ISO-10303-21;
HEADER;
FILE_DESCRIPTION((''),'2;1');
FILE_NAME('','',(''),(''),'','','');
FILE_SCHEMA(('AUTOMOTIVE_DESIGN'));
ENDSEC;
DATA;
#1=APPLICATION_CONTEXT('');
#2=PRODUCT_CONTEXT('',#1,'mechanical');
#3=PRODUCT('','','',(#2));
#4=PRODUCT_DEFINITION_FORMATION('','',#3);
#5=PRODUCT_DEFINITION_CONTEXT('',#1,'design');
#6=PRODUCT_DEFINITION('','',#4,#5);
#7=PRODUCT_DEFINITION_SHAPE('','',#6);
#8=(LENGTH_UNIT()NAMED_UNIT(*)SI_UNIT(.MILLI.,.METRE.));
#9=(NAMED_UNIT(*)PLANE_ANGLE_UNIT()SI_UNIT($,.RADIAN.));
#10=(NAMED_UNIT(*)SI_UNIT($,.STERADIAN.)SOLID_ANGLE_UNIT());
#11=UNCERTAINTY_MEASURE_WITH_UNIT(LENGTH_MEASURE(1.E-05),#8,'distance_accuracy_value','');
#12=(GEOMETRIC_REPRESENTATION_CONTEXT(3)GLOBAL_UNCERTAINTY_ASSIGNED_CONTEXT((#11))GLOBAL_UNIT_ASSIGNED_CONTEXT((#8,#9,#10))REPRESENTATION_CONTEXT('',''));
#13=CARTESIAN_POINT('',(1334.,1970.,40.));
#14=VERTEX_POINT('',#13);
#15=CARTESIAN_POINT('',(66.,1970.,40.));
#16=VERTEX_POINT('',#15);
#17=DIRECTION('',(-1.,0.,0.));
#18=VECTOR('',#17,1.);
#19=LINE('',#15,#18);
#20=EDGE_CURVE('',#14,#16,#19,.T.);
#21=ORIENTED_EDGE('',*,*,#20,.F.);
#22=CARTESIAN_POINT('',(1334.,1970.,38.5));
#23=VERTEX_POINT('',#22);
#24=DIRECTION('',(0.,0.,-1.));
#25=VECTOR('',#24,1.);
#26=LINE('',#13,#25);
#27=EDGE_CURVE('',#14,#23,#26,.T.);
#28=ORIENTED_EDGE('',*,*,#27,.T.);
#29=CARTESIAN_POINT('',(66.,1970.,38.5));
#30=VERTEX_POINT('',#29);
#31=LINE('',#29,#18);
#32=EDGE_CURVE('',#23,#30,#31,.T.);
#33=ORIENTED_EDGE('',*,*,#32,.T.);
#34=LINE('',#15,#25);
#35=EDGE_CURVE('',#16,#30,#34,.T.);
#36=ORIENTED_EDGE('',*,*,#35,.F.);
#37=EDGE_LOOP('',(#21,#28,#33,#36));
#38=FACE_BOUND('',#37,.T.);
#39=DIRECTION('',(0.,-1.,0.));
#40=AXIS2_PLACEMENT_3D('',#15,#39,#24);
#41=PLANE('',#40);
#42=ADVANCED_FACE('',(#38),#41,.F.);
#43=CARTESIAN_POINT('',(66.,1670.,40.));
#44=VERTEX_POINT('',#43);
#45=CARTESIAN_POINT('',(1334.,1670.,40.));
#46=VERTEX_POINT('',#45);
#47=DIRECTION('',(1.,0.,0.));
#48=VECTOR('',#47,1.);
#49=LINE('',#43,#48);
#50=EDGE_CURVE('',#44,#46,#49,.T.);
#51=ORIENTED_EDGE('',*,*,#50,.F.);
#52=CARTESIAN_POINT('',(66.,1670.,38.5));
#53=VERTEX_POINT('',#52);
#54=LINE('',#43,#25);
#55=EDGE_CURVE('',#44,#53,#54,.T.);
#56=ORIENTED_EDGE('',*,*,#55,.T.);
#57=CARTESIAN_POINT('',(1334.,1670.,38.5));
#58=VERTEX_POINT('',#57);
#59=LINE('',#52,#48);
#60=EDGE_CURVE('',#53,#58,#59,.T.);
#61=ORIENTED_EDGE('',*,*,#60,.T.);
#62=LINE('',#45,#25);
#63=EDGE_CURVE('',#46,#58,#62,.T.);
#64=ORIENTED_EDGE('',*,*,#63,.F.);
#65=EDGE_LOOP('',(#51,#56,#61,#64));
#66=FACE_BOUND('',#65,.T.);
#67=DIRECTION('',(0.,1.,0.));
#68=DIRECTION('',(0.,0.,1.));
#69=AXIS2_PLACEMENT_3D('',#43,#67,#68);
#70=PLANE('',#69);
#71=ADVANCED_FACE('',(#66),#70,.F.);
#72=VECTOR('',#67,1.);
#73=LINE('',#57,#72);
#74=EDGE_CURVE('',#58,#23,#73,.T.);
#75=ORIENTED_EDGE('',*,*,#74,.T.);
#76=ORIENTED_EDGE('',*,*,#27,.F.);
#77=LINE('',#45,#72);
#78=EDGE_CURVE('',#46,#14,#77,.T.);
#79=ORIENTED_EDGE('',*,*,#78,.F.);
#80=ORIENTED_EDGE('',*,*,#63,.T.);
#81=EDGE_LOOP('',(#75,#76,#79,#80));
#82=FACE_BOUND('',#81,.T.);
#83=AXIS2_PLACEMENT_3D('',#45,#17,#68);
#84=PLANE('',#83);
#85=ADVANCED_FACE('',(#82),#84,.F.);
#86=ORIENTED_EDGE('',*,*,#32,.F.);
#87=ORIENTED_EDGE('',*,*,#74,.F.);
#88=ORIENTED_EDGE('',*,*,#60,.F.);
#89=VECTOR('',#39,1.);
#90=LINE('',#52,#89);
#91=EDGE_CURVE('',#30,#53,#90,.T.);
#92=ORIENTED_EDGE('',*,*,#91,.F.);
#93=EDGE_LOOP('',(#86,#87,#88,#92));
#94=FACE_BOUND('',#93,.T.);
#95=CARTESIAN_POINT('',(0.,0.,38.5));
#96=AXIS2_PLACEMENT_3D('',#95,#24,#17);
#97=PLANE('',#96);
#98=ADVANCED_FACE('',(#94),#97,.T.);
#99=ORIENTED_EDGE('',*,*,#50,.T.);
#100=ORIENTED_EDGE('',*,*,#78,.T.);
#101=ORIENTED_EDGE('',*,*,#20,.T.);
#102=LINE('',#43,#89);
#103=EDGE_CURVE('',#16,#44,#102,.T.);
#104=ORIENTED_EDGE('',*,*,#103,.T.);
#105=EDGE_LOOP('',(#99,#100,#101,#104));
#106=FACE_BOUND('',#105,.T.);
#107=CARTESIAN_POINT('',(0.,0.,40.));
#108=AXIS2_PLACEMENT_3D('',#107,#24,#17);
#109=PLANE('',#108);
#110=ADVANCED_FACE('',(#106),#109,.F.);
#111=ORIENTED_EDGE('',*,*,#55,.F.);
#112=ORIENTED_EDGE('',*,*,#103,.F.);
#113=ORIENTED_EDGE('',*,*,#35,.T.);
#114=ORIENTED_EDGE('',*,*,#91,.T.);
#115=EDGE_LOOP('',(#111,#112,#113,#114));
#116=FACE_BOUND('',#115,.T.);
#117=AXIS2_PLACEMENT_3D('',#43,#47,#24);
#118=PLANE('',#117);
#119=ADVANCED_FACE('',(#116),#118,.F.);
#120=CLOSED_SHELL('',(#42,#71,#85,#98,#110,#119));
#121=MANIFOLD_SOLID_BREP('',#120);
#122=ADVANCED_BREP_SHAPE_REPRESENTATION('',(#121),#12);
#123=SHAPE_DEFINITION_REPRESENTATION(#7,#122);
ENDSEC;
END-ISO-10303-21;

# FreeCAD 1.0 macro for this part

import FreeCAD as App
import Part
import Sketcher

V = App.Vector

doc = App.newDocument("Part")
body = doc.addObject("PartDesign::Body", "Body")

# Sketch on XY plane
sketch1 = doc.addObject("Sketcher::SketchObject", "Sketch")
body.addObject(sketch1)
sketch1.AttachmentSupport = (doc.XY_Plane, [""])
sketch1.MapMode = "FlatFace"
sketch1.AttachmentOffset = App.Placement(V(0, 0, 38.5), App.Rotation())
sketch1.addGeometry(Part.LineSegment(V(66, 1970, 0), V(66, 1670, 0)), False)
sketch1.addGeometry(Part.LineSegment(V(66, 1670, 0), V(1334, 1670, 0)), False)
sketch1.addGeometry(Part.LineSegment(V(1334, 1670, 0), V(1334, 1970, 0)), False)
sketch1.addGeometry(Part.LineSegment(V(1334, 1970, 0), V(66, 1970, 0)), False)
sketch1.addConstraint(Sketcher.Constraint("Coincident", 0, 2, 1, 1))
sketch1.addConstraint(Sketcher.Constraint("Coincident", 1, 2, 2, 1))
sketch1.addConstraint(Sketcher.Constraint("Coincident", 2, 2, 3, 1))
sketch1.addConstraint(Sketcher.Constraint("Coincident", 3, 2, 0, 1))
sketch1.addConstraint(Sketcher.Constraint("Vertical", 0))
sketch1.addConstraint(Sketcher.Constraint("Horizontal", 1))
sketch1.addConstraint(Sketcher.Constraint("Vertical", 2))
sketch1.addConstraint(Sketcher.Constraint("Horizontal", 3))
sketch1.addConstraint(Sketcher.Constraint("DistanceX", 1, 1, 1, 2, 1268.0))
sketch1.addConstraint(Sketcher.Constraint("DistanceY", 0, 2, 0, 1, 300.0))
sketch1.addConstraint(Sketcher.Constraint("DistanceX", -1, 1, 0, 2, 66.0))
sketch1.addConstraint(Sketcher.Constraint("DistanceY", -1, 1, 0, 2, 1670.0))
pad1 = doc.addObject("PartDesign::Pad", "Pad")
body.addObject(pad1)
pad1.Profile = sketch1
pad1.Length = 1.5

doc.recompute()
